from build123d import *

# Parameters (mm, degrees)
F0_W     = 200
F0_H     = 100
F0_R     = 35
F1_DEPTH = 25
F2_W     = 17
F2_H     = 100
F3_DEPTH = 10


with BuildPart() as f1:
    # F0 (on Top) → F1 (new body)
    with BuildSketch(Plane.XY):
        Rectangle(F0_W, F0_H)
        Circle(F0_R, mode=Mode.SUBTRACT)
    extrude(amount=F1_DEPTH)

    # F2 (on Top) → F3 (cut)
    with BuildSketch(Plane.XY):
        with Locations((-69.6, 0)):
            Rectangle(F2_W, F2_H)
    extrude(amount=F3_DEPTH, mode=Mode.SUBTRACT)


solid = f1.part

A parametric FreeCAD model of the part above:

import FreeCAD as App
import Part
import Sketcher
from FreeCAD import Vector


def add_polygon(sketch, points):
    """Adds a closed chain of lines whose ends are joined by coincident constraints."""
    first, n = sketch.GeometryCount, len(points)
    for a, b in zip(points, points[1:] + points[:1]):
        sketch.addGeometry(Part.LineSegment(App.Vector(*a, 0), App.Vector(*b, 0)), False)
    for i in range(n):
        sketch.addConstraint(Sketcher.Constraint("Coincident", first + i, 2, first + (i + 1) % n, 1))

doc = App.newDocument("Part")
params = doc.addObject("Spreadsheet::Sheet", "Params")
for row, (alias, value) in enumerate([
    ("sketch1_diameter", "70 mm"),
    ("sketch1_width", "200 mm"),
    ("sketch1_height", "100 mm"),
    ("pad1_length", "25 mm"),
    ("sketch2_width", "17 mm"),
    ("sketch2_height", "100 mm"),
    ("pocket1_length", "10 mm"),
], start=1):
    params.set(f"A{row}", alias)
    params.set(f"B{row}", "=" + value)
    params.setAlias(f"B{row}", alias)

body = doc.addObject("PartDesign::Body", "Body")

# Sketch on XY plane
sketch1 = body.newObject("Sketcher::SketchObject", "Sketch")
sketch1.AttachmentSupport = (doc.getObject("XY_Plane"), [""])
sketch1.MapMode = "FlatFace"
add_polygon(sketch1, [(-100, 50), (-100, -50), (100, -50), (100, 50)])  # lines 0-3
sketch1.addGeometry(Part.Circle(Vector(0, 0, 0), Vector(0, 0, 1), 35), False)  # 4
sketch1.addConstraint([
    Sketcher.Constraint("Vertical", 0),
    Sketcher.Constraint("Horizontal", 1),
    Sketcher.Constraint("Vertical", 2),
    Sketcher.Constraint("Horizontal", 3),
    Sketcher.Constraint("Coincident", 4, 3, -1, 1),
    Sketcher.Constraint("Symmetric", 0, 2, 2, 2, -1, 1),
    Sketcher.Constraint("Diameter", 4, 70.0),
    Sketcher.Constraint("DistanceX", 1, 1, 1, 2, 200.0),
    Sketcher.Constraint("DistanceY", 0, 2, 0, 1, 100.0),
])
sketch1.setExpression("Constraints[10]", "Params.sketch1_diameter")
sketch1.setExpression("Constraints[11]", "Params.sketch1_width")
sketch1.setExpression("Constraints[12]", "Params.sketch1_height")
pad1 = body.newObject("PartDesign::Pad", "Pad")
pad1.Profile = sketch1
pad1.setExpression("Length", "Params.pad1_length")

# Sketch on XY plane
sketch2 = body.newObject("Sketcher::SketchObject", "Sketch001")
sketch2.AttachmentSupport = (doc.getObject("XY_Plane"), [""])
sketch2.MapMode = "FlatFace"
add_polygon(sketch2, [(-78, 50), (-78, -50), (-61, -50), (-61, 50)])  # lines 0-3
sketch2.addConstraint([
    Sketcher.Constraint("Vertical", 0),
    Sketcher.Constraint("Horizontal", 1),
    Sketcher.Constraint("Vertical", 2),
    Sketcher.Constraint("Horizontal", 3),
    Sketcher.Constraint("DistanceX", 1, 1, 1, 2, 17.0),
    Sketcher.Constraint("DistanceY", 0, 2, 0, 1, 100.0),
    Sketcher.Constraint("DistanceY", 0, 2, -1, 1, 50.0),
    Sketcher.Constraint("DistanceX", 0, 2, -1, 1, 78.1),
])
sketch2.setExpression("Constraints[8]", "Params.sketch2_width")
sketch2.setExpression("Constraints[9]", "Params.sketch2_height")
pocket1 = body.newObject("PartDesign::Pocket", "Pocket")
pocket1.Profile = sketch2
pocket1.setExpression("Length", "Params.pocket1_length")
pocket1.Reversed = True

doc.recompute()
